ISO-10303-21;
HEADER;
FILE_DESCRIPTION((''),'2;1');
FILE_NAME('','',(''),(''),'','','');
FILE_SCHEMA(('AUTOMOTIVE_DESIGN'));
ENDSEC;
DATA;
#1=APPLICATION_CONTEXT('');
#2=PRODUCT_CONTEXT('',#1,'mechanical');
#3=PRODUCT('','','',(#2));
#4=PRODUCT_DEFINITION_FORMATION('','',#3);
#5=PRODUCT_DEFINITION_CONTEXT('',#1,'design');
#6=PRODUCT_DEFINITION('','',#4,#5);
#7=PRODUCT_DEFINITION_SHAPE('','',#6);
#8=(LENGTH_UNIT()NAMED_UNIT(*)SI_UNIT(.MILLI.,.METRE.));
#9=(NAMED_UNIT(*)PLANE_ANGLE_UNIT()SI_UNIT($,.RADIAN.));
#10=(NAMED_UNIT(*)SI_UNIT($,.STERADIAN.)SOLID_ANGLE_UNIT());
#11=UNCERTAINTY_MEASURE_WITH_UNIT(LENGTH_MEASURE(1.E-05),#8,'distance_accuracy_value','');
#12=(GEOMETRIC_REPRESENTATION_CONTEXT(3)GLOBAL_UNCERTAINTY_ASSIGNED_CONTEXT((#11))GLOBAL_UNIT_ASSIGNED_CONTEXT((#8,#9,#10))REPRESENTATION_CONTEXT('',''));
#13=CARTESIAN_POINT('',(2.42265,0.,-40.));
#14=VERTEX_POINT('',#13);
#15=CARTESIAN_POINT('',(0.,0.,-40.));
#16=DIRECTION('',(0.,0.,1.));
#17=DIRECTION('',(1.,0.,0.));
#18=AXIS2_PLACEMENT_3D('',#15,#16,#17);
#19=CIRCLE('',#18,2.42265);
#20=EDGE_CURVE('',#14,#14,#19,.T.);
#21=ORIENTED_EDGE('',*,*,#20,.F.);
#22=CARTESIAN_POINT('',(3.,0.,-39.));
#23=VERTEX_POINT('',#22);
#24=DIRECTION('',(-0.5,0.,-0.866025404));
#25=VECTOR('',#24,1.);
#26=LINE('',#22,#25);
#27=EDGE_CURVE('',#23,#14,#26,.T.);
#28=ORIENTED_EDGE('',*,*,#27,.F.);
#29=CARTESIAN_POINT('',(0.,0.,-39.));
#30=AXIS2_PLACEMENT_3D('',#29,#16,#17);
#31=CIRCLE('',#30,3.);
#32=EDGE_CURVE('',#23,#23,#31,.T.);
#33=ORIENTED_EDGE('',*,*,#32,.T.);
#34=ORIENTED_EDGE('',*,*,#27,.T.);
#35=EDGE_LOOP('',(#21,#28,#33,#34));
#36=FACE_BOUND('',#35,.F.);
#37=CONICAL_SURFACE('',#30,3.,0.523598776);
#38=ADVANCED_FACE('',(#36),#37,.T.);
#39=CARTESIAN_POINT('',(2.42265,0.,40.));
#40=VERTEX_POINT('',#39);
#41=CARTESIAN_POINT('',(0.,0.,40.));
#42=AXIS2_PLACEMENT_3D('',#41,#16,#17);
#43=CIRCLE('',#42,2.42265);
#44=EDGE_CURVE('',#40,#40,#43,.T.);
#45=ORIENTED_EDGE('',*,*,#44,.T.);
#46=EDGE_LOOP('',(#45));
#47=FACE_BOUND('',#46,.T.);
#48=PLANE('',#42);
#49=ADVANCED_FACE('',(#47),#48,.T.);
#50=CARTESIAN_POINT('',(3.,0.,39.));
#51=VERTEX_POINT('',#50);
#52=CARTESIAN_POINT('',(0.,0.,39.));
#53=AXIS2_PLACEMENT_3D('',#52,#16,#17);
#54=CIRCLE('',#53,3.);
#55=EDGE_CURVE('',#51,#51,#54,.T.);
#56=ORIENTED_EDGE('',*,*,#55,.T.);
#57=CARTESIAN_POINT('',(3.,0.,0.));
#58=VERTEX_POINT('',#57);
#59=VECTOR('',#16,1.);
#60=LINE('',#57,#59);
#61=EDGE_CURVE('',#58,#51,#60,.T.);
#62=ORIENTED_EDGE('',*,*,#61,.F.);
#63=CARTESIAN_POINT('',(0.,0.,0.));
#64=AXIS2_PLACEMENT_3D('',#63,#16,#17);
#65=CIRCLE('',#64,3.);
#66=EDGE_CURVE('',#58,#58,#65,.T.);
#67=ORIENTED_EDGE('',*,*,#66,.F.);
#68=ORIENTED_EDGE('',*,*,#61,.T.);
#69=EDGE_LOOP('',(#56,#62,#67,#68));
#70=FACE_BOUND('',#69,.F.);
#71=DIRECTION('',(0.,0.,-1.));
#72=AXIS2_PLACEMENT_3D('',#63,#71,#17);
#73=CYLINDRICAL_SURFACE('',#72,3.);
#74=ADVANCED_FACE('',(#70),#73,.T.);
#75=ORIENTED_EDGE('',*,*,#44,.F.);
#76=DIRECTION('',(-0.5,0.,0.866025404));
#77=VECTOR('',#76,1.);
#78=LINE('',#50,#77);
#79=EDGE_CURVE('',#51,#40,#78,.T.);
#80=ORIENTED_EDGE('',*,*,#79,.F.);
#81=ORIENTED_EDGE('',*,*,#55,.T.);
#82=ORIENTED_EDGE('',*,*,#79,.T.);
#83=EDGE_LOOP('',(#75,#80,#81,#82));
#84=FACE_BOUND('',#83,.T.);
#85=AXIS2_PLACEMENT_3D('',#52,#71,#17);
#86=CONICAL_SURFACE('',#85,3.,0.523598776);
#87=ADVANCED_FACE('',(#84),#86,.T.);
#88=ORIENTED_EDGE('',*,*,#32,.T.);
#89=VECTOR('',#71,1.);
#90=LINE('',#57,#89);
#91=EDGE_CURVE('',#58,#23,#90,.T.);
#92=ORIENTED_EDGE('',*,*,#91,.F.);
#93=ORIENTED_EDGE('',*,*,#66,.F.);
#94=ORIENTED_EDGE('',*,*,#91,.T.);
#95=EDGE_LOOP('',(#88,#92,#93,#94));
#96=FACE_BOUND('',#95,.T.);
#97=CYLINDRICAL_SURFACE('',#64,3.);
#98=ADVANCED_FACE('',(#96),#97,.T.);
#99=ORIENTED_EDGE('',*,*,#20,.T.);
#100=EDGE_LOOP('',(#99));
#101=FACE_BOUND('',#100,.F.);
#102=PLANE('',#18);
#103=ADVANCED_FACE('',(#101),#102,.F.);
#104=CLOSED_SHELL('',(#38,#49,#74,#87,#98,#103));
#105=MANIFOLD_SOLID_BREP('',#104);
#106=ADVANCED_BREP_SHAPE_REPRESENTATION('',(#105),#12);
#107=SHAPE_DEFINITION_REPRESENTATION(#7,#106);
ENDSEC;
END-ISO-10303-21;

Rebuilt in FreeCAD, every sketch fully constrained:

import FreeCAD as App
import Part
import Sketcher
from FreeCAD import Vector
Q = App.Units.Quantity


def edges_at(feature, points):
    """Names of the edges that pass closest to the given points."""
    edges = feature.Shape.Edges
    near = lambda p: min(range(len(edges)), key=lambda i: edges[i].distToShape(Part.Vertex(*p))[0])
    return sorted({f"Edge{near(p) + 1}" for p in points})

doc = App.newDocument("Part")
body = doc.addObject("PartDesign::Body", "Body")

# Sketch on XY plane
sketch1 = doc.addObject("Sketcher::SketchObject", "Sketch")
body.addObject(sketch1)
sketch1.AttachmentSupport = (doc.XY_Plane, [""])
sketch1.MapMode = "FlatFace"
sketch1.addGeometry(Part.Circle(Vector(0, 0, 0), Vector(0, 0, 1), 3), False)
sketch1.addConstraint(Sketcher.Constraint("Coincident", 0, 3, -1, 1))
sketch1.addConstraint(Sketcher.Constraint("Diameter", 0, Q("6 mm")))
pad1 = doc.addObject("PartDesign::Pad", "Pad")
body.addObject(pad1)
pad1.Profile = sketch1
pad1.Length = 80
pad1.Midplane = True
doc.recompute()

chamfer = doc.addObject("PartDesign::Chamfer", "Chamfer")
body.addObject(chamfer)
chamfer.Base = (pad1, edges_at(pad1, [(-3, 0, 40), (-3, 0, -40)]))
chamfer.ChamferType = "Distance and Angle"
chamfer.Size = 1
chamfer.Angle = 30

doc.recompute()
